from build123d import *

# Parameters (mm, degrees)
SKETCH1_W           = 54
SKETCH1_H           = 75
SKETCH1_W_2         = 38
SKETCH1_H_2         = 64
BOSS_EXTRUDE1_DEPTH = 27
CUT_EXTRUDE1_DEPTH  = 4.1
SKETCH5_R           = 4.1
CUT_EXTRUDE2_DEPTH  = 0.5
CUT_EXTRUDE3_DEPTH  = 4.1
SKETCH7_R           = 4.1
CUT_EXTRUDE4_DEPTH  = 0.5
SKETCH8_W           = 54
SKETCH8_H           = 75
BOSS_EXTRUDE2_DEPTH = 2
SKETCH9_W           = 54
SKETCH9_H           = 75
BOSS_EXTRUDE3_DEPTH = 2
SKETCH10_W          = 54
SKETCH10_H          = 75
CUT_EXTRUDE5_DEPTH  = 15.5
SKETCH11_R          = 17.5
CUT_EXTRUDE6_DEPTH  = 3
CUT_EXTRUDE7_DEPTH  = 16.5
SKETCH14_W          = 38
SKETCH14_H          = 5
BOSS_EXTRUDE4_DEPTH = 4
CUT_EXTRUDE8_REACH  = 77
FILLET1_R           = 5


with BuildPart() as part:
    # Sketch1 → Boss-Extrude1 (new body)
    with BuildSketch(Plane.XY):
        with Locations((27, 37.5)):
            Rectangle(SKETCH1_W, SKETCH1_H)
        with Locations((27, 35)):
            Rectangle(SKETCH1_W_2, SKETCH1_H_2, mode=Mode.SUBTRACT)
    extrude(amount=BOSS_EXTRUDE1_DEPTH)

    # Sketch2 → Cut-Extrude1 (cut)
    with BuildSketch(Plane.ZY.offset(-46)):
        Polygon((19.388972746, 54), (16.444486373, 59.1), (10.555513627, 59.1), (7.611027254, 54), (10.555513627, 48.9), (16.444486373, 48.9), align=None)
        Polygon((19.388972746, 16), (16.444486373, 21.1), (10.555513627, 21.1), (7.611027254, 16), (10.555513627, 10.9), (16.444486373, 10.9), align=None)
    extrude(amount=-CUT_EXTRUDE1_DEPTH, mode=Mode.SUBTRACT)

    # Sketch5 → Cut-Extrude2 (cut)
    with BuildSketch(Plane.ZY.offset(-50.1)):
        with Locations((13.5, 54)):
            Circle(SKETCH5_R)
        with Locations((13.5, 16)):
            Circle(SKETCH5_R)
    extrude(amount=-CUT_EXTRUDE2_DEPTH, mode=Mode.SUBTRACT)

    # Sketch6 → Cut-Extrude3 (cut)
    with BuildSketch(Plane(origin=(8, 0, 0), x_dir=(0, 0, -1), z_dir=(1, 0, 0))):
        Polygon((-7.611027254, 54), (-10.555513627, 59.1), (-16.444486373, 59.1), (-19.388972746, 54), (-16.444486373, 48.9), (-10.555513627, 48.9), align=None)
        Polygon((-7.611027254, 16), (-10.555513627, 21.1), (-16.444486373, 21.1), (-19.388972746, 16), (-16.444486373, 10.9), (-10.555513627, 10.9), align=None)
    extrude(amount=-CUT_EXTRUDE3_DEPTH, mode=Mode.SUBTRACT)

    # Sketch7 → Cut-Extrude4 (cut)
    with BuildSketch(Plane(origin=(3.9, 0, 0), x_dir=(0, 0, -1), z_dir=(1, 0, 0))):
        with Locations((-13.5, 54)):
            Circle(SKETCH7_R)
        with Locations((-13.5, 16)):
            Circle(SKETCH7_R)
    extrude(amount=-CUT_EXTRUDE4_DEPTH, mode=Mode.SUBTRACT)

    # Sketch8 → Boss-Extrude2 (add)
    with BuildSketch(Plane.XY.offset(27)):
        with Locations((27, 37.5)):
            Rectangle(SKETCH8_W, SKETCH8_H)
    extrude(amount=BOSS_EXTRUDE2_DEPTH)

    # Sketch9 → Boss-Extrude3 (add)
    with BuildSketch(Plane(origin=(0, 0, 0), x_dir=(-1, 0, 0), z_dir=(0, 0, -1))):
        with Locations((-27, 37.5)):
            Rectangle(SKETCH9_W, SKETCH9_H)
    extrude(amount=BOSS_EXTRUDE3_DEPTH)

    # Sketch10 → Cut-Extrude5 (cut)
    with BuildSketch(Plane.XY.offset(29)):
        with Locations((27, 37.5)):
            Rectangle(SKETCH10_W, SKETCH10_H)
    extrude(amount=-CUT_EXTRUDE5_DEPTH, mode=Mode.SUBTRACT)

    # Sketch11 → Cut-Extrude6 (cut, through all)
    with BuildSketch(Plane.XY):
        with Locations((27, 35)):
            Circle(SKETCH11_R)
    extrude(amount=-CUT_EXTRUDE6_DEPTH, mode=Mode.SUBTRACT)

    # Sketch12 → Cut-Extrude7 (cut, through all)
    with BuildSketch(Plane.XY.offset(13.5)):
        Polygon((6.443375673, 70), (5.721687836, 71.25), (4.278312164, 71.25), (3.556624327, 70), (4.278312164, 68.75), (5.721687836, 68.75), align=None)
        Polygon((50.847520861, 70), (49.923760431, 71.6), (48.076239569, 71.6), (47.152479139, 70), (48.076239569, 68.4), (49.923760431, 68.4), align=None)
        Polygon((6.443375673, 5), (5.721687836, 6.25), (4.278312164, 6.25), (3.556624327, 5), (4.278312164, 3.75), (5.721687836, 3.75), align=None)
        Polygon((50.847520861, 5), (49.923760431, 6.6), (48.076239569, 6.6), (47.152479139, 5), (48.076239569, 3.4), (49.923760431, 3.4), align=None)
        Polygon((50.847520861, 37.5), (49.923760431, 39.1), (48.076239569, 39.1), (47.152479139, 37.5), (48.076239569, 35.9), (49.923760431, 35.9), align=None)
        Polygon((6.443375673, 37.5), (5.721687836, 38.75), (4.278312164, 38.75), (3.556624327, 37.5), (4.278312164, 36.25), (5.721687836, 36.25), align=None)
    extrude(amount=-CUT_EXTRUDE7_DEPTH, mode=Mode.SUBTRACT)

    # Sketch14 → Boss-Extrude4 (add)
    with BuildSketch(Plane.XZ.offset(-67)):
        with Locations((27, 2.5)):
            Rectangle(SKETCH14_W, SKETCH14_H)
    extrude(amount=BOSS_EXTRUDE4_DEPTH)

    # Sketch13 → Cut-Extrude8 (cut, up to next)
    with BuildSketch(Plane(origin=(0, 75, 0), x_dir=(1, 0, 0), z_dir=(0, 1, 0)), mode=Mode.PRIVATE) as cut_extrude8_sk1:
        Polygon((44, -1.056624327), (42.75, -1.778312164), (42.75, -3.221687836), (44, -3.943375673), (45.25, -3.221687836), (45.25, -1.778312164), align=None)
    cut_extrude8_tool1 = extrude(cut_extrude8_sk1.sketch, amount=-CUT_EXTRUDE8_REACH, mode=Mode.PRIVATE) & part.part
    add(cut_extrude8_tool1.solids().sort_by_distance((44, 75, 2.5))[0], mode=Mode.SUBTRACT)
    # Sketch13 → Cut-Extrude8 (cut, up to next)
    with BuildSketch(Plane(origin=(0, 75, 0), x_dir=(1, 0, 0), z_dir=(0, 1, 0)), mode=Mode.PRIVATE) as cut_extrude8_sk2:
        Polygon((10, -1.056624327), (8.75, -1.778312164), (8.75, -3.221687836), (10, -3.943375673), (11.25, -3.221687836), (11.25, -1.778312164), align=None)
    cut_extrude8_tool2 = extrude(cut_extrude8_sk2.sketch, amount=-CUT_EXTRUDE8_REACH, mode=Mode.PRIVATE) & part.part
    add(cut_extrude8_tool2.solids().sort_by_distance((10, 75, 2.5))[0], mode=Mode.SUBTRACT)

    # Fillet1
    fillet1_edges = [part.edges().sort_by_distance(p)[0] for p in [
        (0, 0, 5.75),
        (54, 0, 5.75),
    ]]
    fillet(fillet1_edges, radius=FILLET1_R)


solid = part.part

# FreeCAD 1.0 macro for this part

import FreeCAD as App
import Part
import Sketcher
Q = App.Units.Quantity


def edges_at(feature, points):
    """Names of the edges that pass closest to the given points."""
    edges = feature.Shape.Edges
    near = lambda p: min(range(len(edges)), key=lambda i: edges[i].distToShape(Part.Vertex(*p))[0])
    return sorted({f"Edge{near(p) + 1}" for p in points})


def add_polygon(sketch, points):
    """Adds a closed chain of lines whose ends are joined by coincident constraints."""
    first, n = sketch.GeometryCount, len(points)
    for a, b in zip(points, points[1:] + points[:1]):
        sketch.addGeometry(Part.LineSegment(App.Vector(*a, 0), App.Vector(*b, 0)), False)
    for i in range(n):
        sketch.addConstraint(Sketcher.Constraint("Coincident", first + i, 2, first + (i + 1) % n, 1))

doc = App.newDocument("Part")
body = doc.addObject("PartDesign::Body", "Body")

sketch1 = doc.addObject("Sketcher::SketchObject", "Sketch")
body.addObject(sketch1)
sketch1.AttachmentSupport = (doc.XY_Plane, [""])
sketch1.MapMode = "FlatFace"
add_polygon(sketch1, [(0, 75), (0, 0), (54, 0), (54, 75)])
add_polygon(sketch1, [(46, 3), (8, 3), (8, 67), (46, 67)])
sketch1.addConstraint([
    Sketcher.Constraint("Vertical", 0),
    Sketcher.Constraint("Horizontal", 1),
    Sketcher.Constraint("Vertical", 2),
    Sketcher.Constraint("Horizontal", 3),
    Sketcher.Constraint("Horizontal", 4),
    Sketcher.Constraint("Vertical", 5),
    Sketcher.Constraint("Horizontal", 6),
    Sketcher.Constraint("Vertical", 7),
    Sketcher.Constraint("Coincident", 0, 2, -1, 1),
    Sketcher.Constraint("DistanceX", 1, 1, 1, 2, Q("54 mm")),
    Sketcher.Constraint("DistanceX", 4, 2, 4, 1, Q("38 mm")),
    Sketcher.Constraint("DistanceY", 0, 2, 0, 1, Q("75 mm")),
    Sketcher.Constraint("DistanceY", 5, 1, 5, 2, Q("64 mm")),
    Sketcher.Constraint("DistanceX", -1, 1, 4, 2, Q("8 mm")),
    Sketcher.Constraint("DistanceY", -1, 1, 4, 2, Q("3 mm")),
])
pad1 = doc.addObject("PartDesign::Pad", "Pad")
body.addObject(pad1)
pad1.Profile = sketch1
pad1.Length = 27

sketch2 = doc.addObject("Sketcher::SketchObject", "Sketch001")
body.addObject(sketch2)
sketch2.AttachmentSupport = (doc.YZ_Plane, [""])
sketch2.MapMode = "FlatFace"
sketch2.AttachmentOffset = App.Placement(App.Vector(0, 0, 46), App.Rotation())
add_polygon(sketch2, [(54, 19), (59, 16), (59, 11), (54, 8), (49, 11), (49, 16)])
add_polygon(sketch2, [(16, 19), (21, 16), (21, 11), (16, 8), (11, 11), (11, 16)])
sketch2.addConstraint([
    Sketcher.Constraint("Vertical", 1),
    Sketcher.Constraint("Vertical", 4),
    Sketcher.Constraint("Vertical", 7),
    Sketcher.Constraint("Vertical", 10),
    Sketcher.Constraint("Parallel", 0, 3),
    Sketcher.Constraint("Parallel", 2, 5),
    Sketcher.Constraint("Parallel", 3, 6),
    Sketcher.Constraint("Parallel", 5, 8),
    Sketcher.Constraint("Parallel", 6, 9),
    Sketcher.Constraint("Parallel", 8, 11),
    Sketcher.Constraint("Horizontal", 1, 2, 3, 2),
    Sketcher.Constraint("Horizontal", 0, 2, 4, 2),
    Sketcher.Constraint("Horizontal", 4, 2, 6, 2),
    Sketcher.Constraint("Horizontal", 3, 2, 7, 2),
    Sketcher.Constraint("Horizontal", 2, 2, 8, 2),
    Sketcher.Constraint("Horizontal", 7, 2, 9, 2),
    Sketcher.Constraint("Horizontal", 6, 2, 10, 2),
    Sketcher.Constraint("Vertical", 2, 2, 5, 2),
    Sketcher.Constraint("Angle", 0, Q("-30 deg")),
    Sketcher.Constraint("DistanceX", -1, 1, 2, 2, Q("54 mm")),
    Sketcher.Constraint("DistanceX", -1, 1, 8, 2, Q("16 mm")),
    Sketcher.Constraint("DistanceX", -1, 1, 0, 2, Q("59.1 mm")),
    Sketcher.Constraint("DistanceY", 1, 2, 1, 1, Q("5.888973 mm")),
    Sketcher.Constraint("DistanceY", -1, 1, 0, 2, Q("16.444486 mm")),
])
pocket1 = doc.addObject("PartDesign::Pocket", "Pocket")
body.addObject(pocket1)
pocket1.Profile = sketch2
pocket1.Length = 4.1
pocket1.Reversed = True

sketch3 = doc.addObject("Sketcher::SketchObject", "Sketch002")
body.addObject(sketch3)
sketch3.AttachmentSupport = (doc.YZ_Plane, [""])
sketch3.MapMode = "FlatFace"
sketch3.AttachmentOffset = App.Placement(App.Vector(0, 0, 50.1), App.Rotation())
sketch3.addGeometry([
    Part.Circle(App.Vector(54, 13.5, 0), App.Vector(0, 0, 1), 4.1),
    Part.Circle(App.Vector(16, 13.5, 0), App.Vector(0, 0, 1), 4.1),
], False)
sketch3.addConstraint([
    Sketcher.Constraint("Equal", 0, 1),
    Sketcher.Constraint("Horizontal", 0, 3, 1, 3),
    Sketcher.Constraint("Diameter", 0, Q("8.2 mm")),
    Sketcher.Constraint("DistanceX", -1, 1, 0, 3, Q("54 mm")),
    Sketcher.Constraint("DistanceX", -1, 1, 1, 3, Q("16 mm")),
    Sketcher.Constraint("DistanceY", -1, 1, 0, 3, Q("13.5 mm")),
])
pocket2 = doc.addObject("PartDesign::Pocket", "Pocket001")
body.addObject(pocket2)
pocket2.Profile = sketch3
pocket2.Length = 0.5
pocket2.Reversed = True

sketch4 = doc.addObject("Sketcher::SketchObject", "Sketch003")
body.addObject(sketch4)
sketch4.AttachmentSupport = (doc.YZ_Plane, [""])
sketch4.MapMode = "FlatFace"
sketch4.AttachmentOffset = App.Placement(App.Vector(0, 0, 8), App.Rotation())
add_polygon(sketch4, [(54, 8), (59, 11), (59, 16), (54, 19), (49, 16), (49, 11)])
add_polygon(sketch4, [(16, 8), (21, 11), (21, 16), (16, 19), (11, 16), (11, 11)])
sketch4.addConstraint([
    Sketcher.Constraint("Vertical", 1),
    Sketcher.Constraint("Vertical", 4),
    Sketcher.Constraint("Vertical", 7),
    Sketcher.Constraint("Vertical", 10),
    Sketcher.Constraint("Parallel", 0, 3),
    Sketcher.Constraint("Parallel", 2, 5),
    Sketcher.Constraint("Parallel", 3, 6),
    Sketcher.Constraint("Parallel", 5, 8),
    Sketcher.Constraint("Parallel", 6, 9),
    Sketcher.Constraint("Parallel", 8, 11),
    Sketcher.Constraint("Horizontal", 1, 2, 3, 2),
    Sketcher.Constraint("Horizontal", 0, 2, 4, 2),
    Sketcher.Constraint("Horizontal", 4, 2, 6, 2),
    Sketcher.Constraint("Horizontal", 3, 2, 7, 2),
    Sketcher.Constraint("Horizontal", 2, 2, 8, 2),
    Sketcher.Constraint("Horizontal", 7, 2, 9, 2),
    Sketcher.Constraint("Horizontal", 6, 2, 10, 2),
    Sketcher.Constraint("Vertical", 2, 2, 5, 2),
    Sketcher.Constraint("Angle", 0, Q("30 deg")),
    Sketcher.Constraint("DistanceX", -1, 1, 2, 2, Q("54 mm")),
    Sketcher.Constraint("DistanceX", -1, 1, 8, 2, Q("16 mm")),
    Sketcher.Constraint("DistanceX", -1, 1, 0, 2, Q("59.1 mm")),
    Sketcher.Constraint("DistanceY", 1, 1, 1, 2, Q("5.888973 mm")),
    Sketcher.Constraint("DistanceY", -1, 1, 0, 2, Q("10.555514 mm")),
])
pocket3 = doc.addObject("PartDesign::Pocket", "Pocket002")
body.addObject(pocket3)
pocket3.Profile = sketch4
pocket3.Length = 4.1

sketch5 = doc.addObject("Sketcher::SketchObject", "Sketch004")
body.addObject(sketch5)
sketch5.AttachmentSupport = (doc.YZ_Plane, [""])
sketch5.MapMode = "FlatFace"
sketch5.AttachmentOffset = App.Placement(App.Vector(0, 0, 3.9), App.Rotation())
sketch5.addGeometry([
    Part.Circle(App.Vector(54, 13.5, 0), App.Vector(0, 0, 1), 4.1),
    Part.Circle(App.Vector(16, 13.5, 0), App.Vector(0, 0, 1), 4.1),
], False)
sketch5.addConstraint([
    Sketcher.Constraint("Equal", 0, 1),
    Sketcher.Constraint("Horizontal", 0, 3, 1, 3),
    Sketcher.Constraint("Diameter", 0, Q("8.2 mm")),
    Sketcher.Constraint("DistanceX", -1, 1, 0, 3, Q("54 mm")),
    Sketcher.Constraint("DistanceX", -1, 1, 1, 3, Q("16 mm")),
    Sketcher.Constraint("DistanceY", -1, 1, 0, 3, Q("13.5 mm")),
])
pocket4 = doc.addObject("PartDesign::Pocket", "Pocket003")
body.addObject(pocket4)
pocket4.Profile = sketch5
pocket4.Length = 0.5

sketch6 = doc.addObject("Sketcher::SketchObject", "Sketch005")
body.addObject(sketch6)
sketch6.AttachmentSupport = (doc.XY_Plane, [""])
sketch6.MapMode = "FlatFace"
sketch6.AttachmentOffset = App.Placement(App.Vector(0, 0, 27), App.Rotation())
add_polygon(sketch6, [(0, 75), (0, 0), (54, 0), (54, 75)])
sketch6.addConstraint([
    Sketcher.Constraint("Vertical", 0),
    Sketcher.Constraint("Horizontal", 1),
    Sketcher.Constraint("Vertical", 2),
    Sketcher.Constraint("Horizontal", 3),
    Sketcher.Constraint("Coincident", 0, 2, -1, 1),
    Sketcher.Constraint("DistanceX", 1, 1, 1, 2, Q("54 mm")),
    Sketcher.Constraint("DistanceY", 0, 2, 0, 1, Q("75 mm")),
])
pad2 = doc.addObject("PartDesign::Pad", "Pad001")
body.addObject(pad2)
pad2.Profile = sketch6
pad2.Length = 2

sketch7 = doc.addObject("Sketcher::SketchObject", "Sketch006")
body.addObject(sketch7)
sketch7.AttachmentSupport = (doc.XY_Plane, [""])
sketch7.MapMode = "FlatFace"
add_polygon(sketch7, [(54, 75), (54, 0), (0, 0), (0, 75)])
sketch7.addConstraint([
    Sketcher.Constraint("Vertical", 0),
    Sketcher.Constraint("Horizontal", 1),
    Sketcher.Constraint("Vertical", 2),
    Sketcher.Constraint("Horizontal", 3),
    Sketcher.Constraint("Coincident", 1, 2, -1, 1),
    Sketcher.Constraint("DistanceX", 1, 2, 1, 1, Q("54 mm")),
    Sketcher.Constraint("DistanceY", 0, 2, 0, 1, Q("75 mm")),
])
pad3 = doc.addObject("PartDesign::Pad", "Pad002")
body.addObject(pad3)
pad3.Profile = sketch7
pad3.Length = 2
pad3.Reversed = True

sketch8 = doc.addObject("Sketcher::SketchObject", "Sketch007")
body.addObject(sketch8)
sketch8.AttachmentSupport = (doc.XY_Plane, [""])
sketch8.MapMode = "FlatFace"
sketch8.AttachmentOffset = App.Placement(App.Vector(0, 0, 29), App.Rotation())
add_polygon(sketch8, [(0, 75), (0, 0), (54, 0), (54, 75)])
sketch8.addConstraint([
    Sketcher.Constraint("Vertical", 0),
    Sketcher.Constraint("Horizontal", 1),
    Sketcher.Constraint("Vertical", 2),
    Sketcher.Constraint("Horizontal", 3),
    Sketcher.Constraint("Coincident", 0, 2, -1, 1),
    Sketcher.Constraint("DistanceX", 1, 1, 1, 2, Q("54 mm")),
    Sketcher.Constraint("DistanceY", 0, 2, 0, 1, Q("75 mm")),
])
pocket5 = doc.addObject("PartDesign::Pocket", "Pocket004")
body.addObject(pocket5)
pocket5.Profile = sketch8
pocket5.Length = 15.5

sketch9 = doc.addObject("Sketcher::SketchObject", "Sketch008")
body.addObject(sketch9)
sketch9.AttachmentSupport = (doc.XY_Plane, [""])
sketch9.MapMode = "FlatFace"
sketch9.addGeometry(Part.Circle(App.Vector(27, 35, 0), App.Vector(0, 0, 1), 18), False)
sketch9.addConstraint([
    Sketcher.Constraint("Diameter", 0, Q("35 mm")),
    Sketcher.Constraint("DistanceX", -1, 1, 0, 3, Q("27 mm")),
    Sketcher.Constraint("DistanceY", -1, 1, 0, 3, Q("35 mm")),
])
pocket6 = doc.addObject("PartDesign::Pocket", "Pocket005")
body.addObject(pocket6)
pocket6.Profile = sketch9
pocket6.Type = "ThroughAll"

sketch10 = doc.addObject("Sketcher::SketchObject", "Sketch009")
body.addObject(sketch10)
sketch10.AttachmentSupport = (doc.XY_Plane, [""])
sketch10.MapMode = "FlatFace"
sketch10.AttachmentOffset = App.Placement(App.Vector(0, 0, 13.5), App.Rotation())
add_polygon(sketch10, [(6.4, 70), (5.7, 71.2), (4.3, 71.2), (3.6, 70), (4.3, 68.8), (5.7, 68.8)])
add_polygon(sketch10, [(50.8, 70), (49.9, 71.6), (48.1, 71.6), (47.2, 70), (48.1, 68.4), (49.9, 68.4)])
add_polygon(sketch10, [(6.4, 5), (5.7, 6.2), (4.3, 6.2), (3.6, 5), (4.3, 3.8), (5.7, 3.8)])
add_polygon(sketch10, [(50.8, 5), (49.9, 6.6), (48.1, 6.6), (47.2, 5), (48.1, 3.4), (49.9, 3.4)])
add_polygon(sketch10, [(50.8, 37.5), (49.9, 39.1), (48.1, 39.1), (47.2, 37.5), (48.1, 35.9), (49.9, 35.9)])
add_polygon(sketch10, [(6.4, 37.5), (5.7, 38.8), (4.3, 38.8), (3.6, 37.5), (4.3, 36.2), (5.7, 36.2)])
sketch10.addConstraint([
    Sketcher.Constraint("Horizontal", 1),
    Sketcher.Constraint("Horizontal", 4),
    Sketcher.Constraint("Horizontal", 7),
    Sketcher.Constraint("Horizontal", 10),
    Sketcher.Constraint("Horizontal", 13),
    Sketcher.Constraint("Horizontal", 16),
    Sketcher.Constraint("Horizontal", 19),
    Sketcher.Constraint("Horizontal", 22),
    Sketcher.Constraint("Horizontal", 25),
    Sketcher.Constraint("Horizontal", 28),
    Sketcher.Constraint("Horizontal", 31),
    Sketcher.Constraint("Horizontal", 34),
    Sketcher.Constraint("Parallel", 0, 3),
    Sketcher.Constraint("Parallel", 2, 5),
    Sketcher.Constraint("Parallel", 3, 6),
    Sketcher.Constraint("Parallel", 5, 8),
    Sketcher.Constraint("Parallel", 6, 9),
    Sketcher.Constraint("Parallel", 8, 11),
    Sketcher.Constraint("Parallel", 9, 12),
    Sketcher.Constraint("Parallel", 11, 14),
    Sketcher.Constraint("Parallel", 12, 15),
    Sketcher.Constraint("Parallel", 14, 17),
    Sketcher.Constraint("Parallel", 15, 18),
    Sketcher.Constraint("Parallel", 17, 20),
    Sketcher.Constraint("Parallel", 18, 21),
    Sketcher.Constraint("Parallel", 20, 23),
    Sketcher.Constraint("Parallel", 21, 24),
    Sketcher.Constraint("Parallel", 23, 26),
    Sketcher.Constraint("Parallel", 24, 27),
    Sketcher.Constraint("Parallel", 26, 29),
    Sketcher.Constraint("Parallel", 27, 30),
    Sketcher.Constraint("Parallel", 29, 32),
    Sketcher.Constraint("Parallel", 30, 33),
    Sketcher.Constraint("Parallel", 32, 35),
    Sketcher.Constraint("Horizontal", 2, 2, 5, 2),
    Sketcher.Constraint("Horizontal", 5, 2, 8, 2),
    Sketcher.Constraint("Horizontal", 8, 2, 11, 2),
    Sketcher.Constraint("Horizontal", 14, 2, 17, 2),
    Sketcher.Constraint("Horizontal", 17, 2, 20, 2),
    Sketcher.Constraint("Horizontal", 20, 2, 23, 2),
    Sketcher.Constraint("Horizontal", 26, 2, 29, 2),
    Sketcher.Constraint("Horizontal", 29, 2, 32, 2),
    Sketcher.Constraint("Horizontal", 32, 2, 35, 2),
    Sketcher.Constraint("Vertical", 1, 2, 3, 2),
    Sketcher.Constraint("Vertical", 0, 2, 4, 2),
    Sketcher.Constraint("Vertical", 7, 2, 9, 2),
    Sketcher.Constraint("Vertical", 4, 2, 12, 2),
    Sketcher.Constraint("Vertical", 3, 2, 13, 2),
    Sketcher.Constraint("Vertical", 2, 2, 14, 2),
    Sketcher.Constraint("Vertical", 13, 2, 15, 2),
    Sketcher.Constraint("Vertical", 10, 2, 18, 2),
    Sketcher.Constraint("Vertical", 9, 2, 19, 2),
    Sketcher.Constraint("Vertical", 8, 2, 20, 2),
    Sketcher.Constraint("Vertical", 19, 2, 21, 2),
    Sketcher.Constraint("Vertical", 22, 2, 24, 2),
    Sketcher.Constraint("Vertical", 21, 2, 25, 2),
    Sketcher.Constraint("Vertical", 20, 2, 26, 2),
    Sketcher.Constraint("Vertical", 25, 2, 27, 2),
    Sketcher.Constraint("Vertical", 16, 2, 30, 2),
    Sketcher.Constraint("Vertical", 15, 2, 31, 2),
    Sketcher.Constraint("Vertical", 14, 2, 32, 2),
    Sketcher.Constraint("Vertical", 31, 2, 33, 2),
    Sketcher.Constraint("Angle", 0, Q("120 deg")),
    Sketcher.Constraint("DistanceY", -1, 1, 2, 2, Q("70 mm")),
    Sketcher.Constraint("DistanceY", -1, 1, 14, 2, Q("5 mm")),
    Sketcher.Constraint("DistanceY", 30, 2, 4, 2, Q("30 mm")),
    Sketcher.Constraint("DistanceY", 13, 2, 33, 2, Q("30 mm")),
    Sketcher.Constraint("DistanceY", -1, 1, 6, 2, Q("71.6 mm")),
    Sketcher.Constraint("DistanceX", 7, 2, 7, 1, Q("1.847521 mm")),
    Sketcher.Constraint("DistanceX", 1, 2, 1, 1, Q("1.443376 mm")),
    Sketcher.Constraint("DistanceX", -1, 1, 6, 2, Q("49.92376 mm")),
    Sketcher.Constraint("DistanceX", 1, 2, 6, 2, Q("45.645448 mm")),
])
pocket7 = doc.addObject("PartDesign::Pocket", "Pocket006")
body.addObject(pocket7)
pocket7.Profile = sketch10
pocket7.Type = "ThroughAll"

sketch11 = doc.addObject("Sketcher::SketchObject", "Sketch010")
body.addObject(sketch11)
sketch11.AttachmentSupport = (doc.XZ_Plane, [""])
sketch11.MapMode = "FlatFace"
sketch11.AttachmentOffset = App.Placement(App.Vector(0, 0, -67), App.Rotation())
add_polygon(sketch11, [(8, 5), (8, 0), (46, 0), (46, 5)])
sketch11.addConstraint([
    Sketcher.Constraint("Vertical", 0),
    Sketcher.Constraint("Horizontal", 1),
    Sketcher.Constraint("Vertical", 2),
    Sketcher.Constraint("Horizontal", 3),
    Sketcher.Constraint("PointOnObject", 0, 2, -1),
    Sketcher.Constraint("DistanceX", 1, 1, 1, 2, Q("38 mm")),
    Sketcher.Constraint("DistanceY", 0, 2, 0, 1, Q("5 mm")),
    Sketcher.Constraint("DistanceX", -1, 1, 0, 2, Q("8 mm")),
])
pad4 = doc.addObject("PartDesign::Pad", "Pad003")
body.addObject(pad4)
pad4.Profile = sketch11
pad4.Length = 4

sketch12 = doc.addObject("Sketcher::SketchObject", "Sketch011")
body.addObject(sketch12)
sketch12.AttachmentSupport = (doc.XZ_Plane, [""])
sketch12.MapMode = "FlatFace"
sketch12.AttachmentOffset = App.Placement(App.Vector(0, 0, -75), App.Rotation())
add_polygon(sketch12, [(44, 1.1), (42.8, 1.8), (42.8, 3.2), (44, 3.9), (45.2, 3.2), (45.2, 1.8)])
sketch12.addConstraint([
    Sketcher.Constraint("Vertical", 1),
    Sketcher.Constraint("Vertical", 4),
    Sketcher.Constraint("Parallel", 0, 3),
    Sketcher.Constraint("Parallel", 2, 5),
    Sketcher.Constraint("Horizontal", 1, 2, 3, 2),
    Sketcher.Constraint("Horizontal", 0, 2, 4, 2),
    Sketcher.Constraint("Vertical", 2, 2, 5, 2),
    Sketcher.Constraint("Angle", 0, Q("150 deg")),
    Sketcher.Constraint("DistanceX", -1, 1, 2, 2, Q("44 mm")),
    Sketcher.Constraint("DistanceX", 1, 2, 3, 2, Q("2.5 mm")),
    Sketcher.Constraint("DistanceY", 1, 1, 1, 2, Q("1.443376 mm")),
    Sketcher.Constraint("DistanceY", -1, 1, 0, 2, Q("1.778312 mm")),
])
pocket8 = doc.addObject("PartDesign::Pocket", "Pocket007")
body.addObject(pocket8)
pocket8.Profile = sketch12
pocket8.Type = "UpToFirst"
pocket8.Reversed = True

sketch13 = doc.addObject("Sketcher::SketchObject", "Sketch012")
body.addObject(sketch13)
sketch13.AttachmentSupport = (doc.XZ_Plane, [""])
sketch13.MapMode = "FlatFace"
sketch13.AttachmentOffset = App.Placement(App.Vector(0, 0, -75), App.Rotation())
add_polygon(sketch13, [(10, 1.1), (8.8, 1.8), (8.8, 3.2), (10, 3.9), (11.2, 3.2), (11.2, 1.8)])
sketch13.addConstraint([
    Sketcher.Constraint("Vertical", 1),
    Sketcher.Constraint("Vertical", 4),
    Sketcher.Constraint("Parallel", 0, 3),
    Sketcher.Constraint("Parallel", 2, 5),
    Sketcher.Constraint("Horizontal", 1, 2, 3, 2),
    Sketcher.Constraint("Horizontal", 0, 2, 4, 2),
    Sketcher.Constraint("Vertical", 2, 2, 5, 2),
    Sketcher.Constraint("Angle", 0, Q("150 deg")),
    Sketcher.Constraint("DistanceX", -1, 1, 2, 2, Q("10 mm")),
    Sketcher.Constraint("DistanceX", 1, 2, 3, 2, Q("2.5 mm")),
    Sketcher.Constraint("DistanceY", 1, 1, 1, 2, Q("1.443376 mm")),
    Sketcher.Constraint("DistanceY", -1, 1, 0, 2, Q("1.778312 mm")),
])
pocket9 = doc.addObject("PartDesign::Pocket", "Pocket008")
body.addObject(pocket9)
pocket9.Profile = sketch13
pocket9.Type = "UpToFirst"
pocket9.Reversed = True
doc.recompute()

fillet = doc.addObject("PartDesign::Fillet", "Fillet")
body.addObject(fillet)
fillet.Base = (pocket9, edges_at(pocket9, [(0, 0, 5.75), (54, 0, 5.75)]))
fillet.Radius = 5

doc.recompute()
